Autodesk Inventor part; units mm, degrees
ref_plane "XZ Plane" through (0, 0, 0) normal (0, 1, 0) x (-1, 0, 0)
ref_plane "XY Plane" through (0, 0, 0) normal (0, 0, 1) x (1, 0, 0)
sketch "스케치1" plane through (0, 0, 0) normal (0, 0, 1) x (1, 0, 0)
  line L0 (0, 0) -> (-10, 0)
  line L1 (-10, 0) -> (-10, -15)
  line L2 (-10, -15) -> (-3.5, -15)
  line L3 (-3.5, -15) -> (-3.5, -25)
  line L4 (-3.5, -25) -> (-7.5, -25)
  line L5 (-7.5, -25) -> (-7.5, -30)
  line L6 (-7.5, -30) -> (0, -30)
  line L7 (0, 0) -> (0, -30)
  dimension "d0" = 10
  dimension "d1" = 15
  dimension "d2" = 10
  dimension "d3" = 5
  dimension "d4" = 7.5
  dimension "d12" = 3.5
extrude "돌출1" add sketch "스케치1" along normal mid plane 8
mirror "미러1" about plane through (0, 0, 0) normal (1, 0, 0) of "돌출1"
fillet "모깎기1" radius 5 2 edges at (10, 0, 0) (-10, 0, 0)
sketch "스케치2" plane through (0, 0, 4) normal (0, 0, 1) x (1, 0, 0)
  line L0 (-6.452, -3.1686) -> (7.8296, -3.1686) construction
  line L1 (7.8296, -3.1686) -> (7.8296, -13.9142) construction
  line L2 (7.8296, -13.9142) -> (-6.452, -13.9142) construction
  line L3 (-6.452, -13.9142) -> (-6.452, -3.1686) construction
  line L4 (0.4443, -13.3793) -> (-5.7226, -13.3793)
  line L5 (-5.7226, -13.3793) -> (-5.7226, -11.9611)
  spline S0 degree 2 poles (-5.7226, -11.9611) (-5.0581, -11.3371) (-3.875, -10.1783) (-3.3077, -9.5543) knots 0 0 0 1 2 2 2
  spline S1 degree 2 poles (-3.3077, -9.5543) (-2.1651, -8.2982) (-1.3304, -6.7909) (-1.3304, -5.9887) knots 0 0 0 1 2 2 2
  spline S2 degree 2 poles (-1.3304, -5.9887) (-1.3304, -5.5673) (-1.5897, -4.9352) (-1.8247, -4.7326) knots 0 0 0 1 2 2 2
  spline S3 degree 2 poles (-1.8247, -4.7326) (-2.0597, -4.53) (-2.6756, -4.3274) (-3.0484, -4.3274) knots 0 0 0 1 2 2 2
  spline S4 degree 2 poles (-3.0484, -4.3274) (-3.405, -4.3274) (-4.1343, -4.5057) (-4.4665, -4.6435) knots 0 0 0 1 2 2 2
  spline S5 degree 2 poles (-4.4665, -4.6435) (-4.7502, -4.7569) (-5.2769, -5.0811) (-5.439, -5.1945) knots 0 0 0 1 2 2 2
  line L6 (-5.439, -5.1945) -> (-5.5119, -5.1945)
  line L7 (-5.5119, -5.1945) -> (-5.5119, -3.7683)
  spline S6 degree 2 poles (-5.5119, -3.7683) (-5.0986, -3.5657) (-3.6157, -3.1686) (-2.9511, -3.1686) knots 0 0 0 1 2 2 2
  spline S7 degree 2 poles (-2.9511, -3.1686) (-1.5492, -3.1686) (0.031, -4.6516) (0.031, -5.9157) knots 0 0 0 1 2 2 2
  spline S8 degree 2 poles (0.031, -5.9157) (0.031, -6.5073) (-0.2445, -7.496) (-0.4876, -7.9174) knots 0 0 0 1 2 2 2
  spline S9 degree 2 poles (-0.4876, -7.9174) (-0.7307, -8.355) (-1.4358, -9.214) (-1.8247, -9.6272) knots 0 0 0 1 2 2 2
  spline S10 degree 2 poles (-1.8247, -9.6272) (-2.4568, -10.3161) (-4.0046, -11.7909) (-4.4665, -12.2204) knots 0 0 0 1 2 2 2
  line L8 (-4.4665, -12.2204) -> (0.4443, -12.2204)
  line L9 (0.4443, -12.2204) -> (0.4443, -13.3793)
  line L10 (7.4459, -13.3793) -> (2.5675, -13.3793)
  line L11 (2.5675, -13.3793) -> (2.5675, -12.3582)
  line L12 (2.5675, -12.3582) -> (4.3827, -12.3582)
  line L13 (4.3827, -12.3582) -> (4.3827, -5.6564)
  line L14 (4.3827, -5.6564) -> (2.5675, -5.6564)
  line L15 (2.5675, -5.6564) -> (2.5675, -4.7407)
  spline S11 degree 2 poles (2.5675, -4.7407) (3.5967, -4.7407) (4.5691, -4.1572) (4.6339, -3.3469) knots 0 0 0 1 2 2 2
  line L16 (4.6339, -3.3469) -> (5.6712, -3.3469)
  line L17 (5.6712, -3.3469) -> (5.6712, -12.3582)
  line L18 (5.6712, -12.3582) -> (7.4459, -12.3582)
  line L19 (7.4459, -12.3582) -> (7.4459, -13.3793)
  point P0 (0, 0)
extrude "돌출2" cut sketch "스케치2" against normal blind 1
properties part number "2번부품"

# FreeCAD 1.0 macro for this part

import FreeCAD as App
import Part
import Sketcher
from FreeCAD import Vector


def edges_at(feature, points):
    """Names of the edges that pass closest to the given points."""
    edges = feature.Shape.Edges
    near = lambda p: min(range(len(edges)), key=lambda i: edges[i].distToShape(Part.Vertex(*p))[0])
    return sorted({f"Edge{near(p) + 1}" for p in points})

doc = App.newDocument("Part")
body = doc.addObject("PartDesign::Body", "Body")

# Sketch on XY plane
sketch1 = body.newObject("Sketcher::SketchObject", "Sketch")
sketch1.AttachmentSupport = (doc.getObject("XY_Plane"), [""])
sketch1.MapMode = "FlatFace"
sketch1.addGeometry([
    Part.LineSegment(Vector(0, -30, 0), Vector(0, 0, 0)),  # 0
    Part.LineSegment(Vector(0, 0, 0), Vector(-10, 0, 0)),  # 1
    Part.LineSegment(Vector(-10, 0, 0), Vector(-10, -15, 0)),  # 2
    Part.LineSegment(Vector(-10, -15, 0), Vector(-3.5, -15, 0)),  # 3
    Part.LineSegment(Vector(-3.5, -15, 0), Vector(-3.5, -25, 0)),  # 4
    Part.LineSegment(Vector(-3.5, -25, 0), Vector(-7.5, -25, 0)),  # 5
    Part.LineSegment(Vector(-7.5, -25, 0), Vector(-7.5, -30, 0)),  # 6
    Part.LineSegment(Vector(-7.5, -30, 0), Vector(0, -30, 0)),  # 7
], False)
sketch1.addConstraint([
    Sketcher.Constraint("Coincident", 0, 2, 1, 1),
    Sketcher.Constraint("Coincident", 1, 2, 2, 1),
    Sketcher.Constraint("Coincident", 2, 2, 3, 1),
    Sketcher.Constraint("Coincident", 3, 2, 4, 1),
    Sketcher.Constraint("Coincident", 4, 2, 5, 1),
    Sketcher.Constraint("Coincident", 5, 2, 6, 1),
    Sketcher.Constraint("Coincident", 6, 2, 7, 1),
    Sketcher.Constraint("Coincident", 7, 2, 0, 1),
    Sketcher.Constraint("Vertical", 0),
    Sketcher.Constraint("Horizontal", 1),
    Sketcher.Constraint("Vertical", 2),
    Sketcher.Constraint("Horizontal", 3),
    Sketcher.Constraint("Vertical", 4),
    Sketcher.Constraint("Horizontal", 5),
    Sketcher.Constraint("Vertical", 6),
    Sketcher.Constraint("Horizontal", 7),
    Sketcher.Constraint("Coincident", 0, 2, -1, 1),
    Sketcher.Constraint("Equal", 1, 4),
    Sketcher.Constraint("DistanceX", 1, 2, 1, 1, 10.0),
    Sketcher.Constraint("DistanceY", 2, 2, 2, 1, 15.0),
    Sketcher.Constraint("DistanceY", 6, 2, 6, 1, 5.0),
    Sketcher.Constraint("DistanceX", 7, 1, 7, 2, 7.5),
    Sketcher.Constraint("DistanceX", 3, 2, -1, 1, 3.5),
])
pad1 = body.newObject("PartDesign::Pad", "Pad")
pad1.Profile = sketch1
pad1.Length = 8
pad1.Midplane = True
doc.recompute()

mirrored = body.newObject("PartDesign::Mirrored", "Mirrored")
mirrored.Originals = [pad1]
mirrored.MirrorPlane = (doc.getObject("YZ_Plane"), [""])
body.Tip = mirrored
doc.recompute()

fillet = body.newObject("PartDesign::Fillet", "Fillet")
fillet.Base = (mirrored, edges_at(mirrored, [(10, 0, 0), (-10, 0, 0)]))
fillet.Radius = 5

# Sketch on XY plane
sketch2 = body.newObject("Sketcher::SketchObject", "Sketch001")
sketch2.AttachmentSupport = (doc.getObject("XY_Plane"), [""])
sketch2.MapMode = "FlatFace"
sketch2.AttachmentOffset = App.Placement(Vector(0, 0, 4), App.Rotation())
sketch2.addGeometry([
    Part.LineSegment(Vector(-5.7226, -13.3793, 0), Vector(0.4443, -13.3793, 0)),  # 0
    Part.LineSegment(Vector(0.4443, -13.3793, 0), Vector(0.4443, -12.2204, 0)),  # 1
    Part.LineSegment(Vector(0.4443, -12.2204, 0), Vector(-4.4665, -12.2204, 0)),  # 2
    Part.BSplineCurve([Vector(-1.8247, -9.6272, 0), Vector(-2.4568, -10.3161, 0), Vector(-4.0046, -11.7909, 0), Vector(-4.4665, -12.2204, 0)], [3, 1, 3], [0, 1, 2], False, 2, [1, 1, 1, 1], False),  # 3
    Part.BSplineCurve([Vector(-0.4876, -7.9174, 0), Vector(-0.7307, -8.355, 0), Vector(-1.4358, -9.214, 0), Vector(-1.8247, -9.6272, 0)], [3, 1, 3], [0, 1, 2], False, 2, [1, 1, 1, 1], False),  # 4
    Part.BSplineCurve([Vector(0.031, -5.9157, 0), Vector(0.031, -6.5073, 0), Vector(-0.2445, -7.496, 0), Vector(-0.4876, -7.9174, 0)], [3, 1, 3], [0, 1, 2], False, 2, [1, 1, 1, 1], False),  # 5
    Part.BSplineCurve([Vector(-2.9511, -3.1686, 0), Vector(-1.5492, -3.1686, 0), Vector(0.031, -4.6516, 0), Vector(0.031, -5.9157, 0)], [3, 1, 3], [0, 1, 2], False, 2, [1, 1, 1, 1], False),  # 6
    Part.BSplineCurve([Vector(-5.5119, -3.7683, 0), Vector(-5.0986, -3.5657, 0), Vector(-3.6157, -3.1686, 0), Vector(-2.9511, -3.1686, 0)], [3, 1, 3], [0, 1, 2], False, 2, [1, 1, 1, 1], False),  # 7
    Part.LineSegment(Vector(-5.5119, -3.7683, 0), Vector(-5.5119, -5.1945, 0)),  # 8
    Part.LineSegment(Vector(-5.5119, -5.1945, 0), Vector(-5.439, -5.1945, 0)),  # 9
    Part.BSplineCurve([Vector(-4.4665, -4.6435, 0), Vector(-4.7502, -4.7569, 0), Vector(-5.2769, -5.0811, 0), Vector(-5.439, -5.1945, 0)], [3, 1, 3], [0, 1, 2], False, 2, [1, 1, 1, 1], False),  # 10
    Part.BSplineCurve([Vector(-3.0484, -4.3274, 0), Vector(-3.405, -4.3274, 0), Vector(-4.1343, -4.5057, 0), Vector(-4.4665, -4.6435, 0)], [3, 1, 3], [0, 1, 2], False, 2, [1, 1, 1, 1], False),  # 11
    Part.BSplineCurve([Vector(-1.8247, -4.7326, 0), Vector(-2.0597, -4.53, 0), Vector(-2.6756, -4.3274, 0), Vector(-3.0484, -4.3274, 0)], [3, 1, 3], [0, 1, 2], False, 2, [1, 1, 1, 1], False),  # 12
    Part.BSplineCurve([Vector(-1.3304, -5.9887, 0), Vector(-1.3304, -5.5673, 0), Vector(-1.5897, -4.9352, 0), Vector(-1.8247, -4.7326, 0)], [3, 1, 3], [0, 1, 2], False, 2, [1, 1, 1, 1], False),  # 13
    Part.BSplineCurve([Vector(-3.3077, -9.5543, 0), Vector(-2.1651, -8.2982, 0), Vector(-1.3304, -6.7909, 0), Vector(-1.3304, -5.9887, 0)], [3, 1, 3], [0, 1, 2], False, 2, [1, 1, 1, 1], False),  # 14
    Part.BSplineCurve([Vector(-5.7226, -11.9611, 0), Vector(-5.0581, -11.3371, 0), Vector(-3.875, -10.1783, 0), Vector(-3.3077, -9.5543, 0)], [3, 1, 3], [0, 1, 2], False, 2, [1, 1, 1, 1], False),  # 15
    Part.LineSegment(Vector(-5.7226, -11.9611, 0), Vector(-5.7226, -13.3793, 0)),  # 16
    Part.LineSegment(Vector(2.5675, -13.3793, 0), Vector(7.4459, -13.3793, 0)),  # 17
    Part.LineSegment(Vector(7.4459, -13.3793, 0), Vector(7.4459, -12.3582, 0)),  # 18
    Part.LineSegment(Vector(7.4459, -12.3582, 0), Vector(5.6712, -12.3582, 0)),  # 19
    Part.LineSegment(Vector(5.6712, -12.3582, 0), Vector(5.6712, -3.3469, 0)),  # 20
    Part.LineSegment(Vector(5.6712, -3.3469, 0), Vector(4.6339, -3.3469, 0)),  # 21
    Part.BSplineCurve([Vector(2.5675, -4.7407, 0), Vector(3.5967, -4.7407, 0), Vector(4.5691, -4.1572, 0), Vector(4.6339, -3.3469, 0)], [3, 1, 3], [0, 1, 2], False, 2, [1, 1, 1, 1], False),  # 22
    Part.LineSegment(Vector(2.5675, -4.7407, 0), Vector(2.5675, -5.6564, 0)),  # 23
    Part.LineSegment(Vector(2.5675, -5.6564, 0), Vector(4.3827, -5.6564, 0)),  # 24
    Part.LineSegment(Vector(4.3827, -5.6564, 0), Vector(4.3827, -12.3582, 0)),  # 25
    Part.LineSegment(Vector(4.3827, -12.3582, 0), Vector(2.5675, -12.3582, 0)),  # 26
    Part.LineSegment(Vector(2.5675, -12.3582, 0), Vector(2.5675, -13.3793, 0)),  # 27
], False)
sketch2.addConstraint([
    Sketcher.Constraint("Block", 3),
    Sketcher.Constraint("Block", 4),
    Sketcher.Constraint("Block", 5),
    Sketcher.Constraint("Block", 6),
    Sketcher.Constraint("Block", 7),
    Sketcher.Constraint("Block", 10),
    Sketcher.Constraint("Block", 11),
    Sketcher.Constraint("Block", 12),
    Sketcher.Constraint("Block", 13),
    Sketcher.Constraint("Block", 14),
    Sketcher.Constraint("Block", 15),
    Sketcher.Constraint("Block", 22),
    Sketcher.Constraint("Coincident", 0, 2, 1, 1),
    Sketcher.Constraint("Coincident", 1, 2, 2, 1),
    Sketcher.Constraint("Coincident", 2, 2, 3, 2),
    Sketcher.Constraint("Coincident", 7, 1, 8, 1),
    Sketcher.Constraint("Coincident", 8, 2, 9, 1),
    Sketcher.Constraint("Coincident", 9, 2, 10, 2),
    Sketcher.Constraint("Coincident", 15, 1, 16, 1),
    Sketcher.Constraint("Coincident", 16, 2, 0, 1),
    Sketcher.Constraint("Coincident", 17, 2, 18, 1),
    Sketcher.Constraint("Coincident", 18, 2, 19, 1),
    Sketcher.Constraint("Coincident", 19, 2, 20, 1),
    Sketcher.Constraint("Coincident", 20, 2, 21, 1),
    Sketcher.Constraint("Coincident", 21, 2, 22, 2),
    Sketcher.Constraint("Coincident", 22, 1, 23, 1),
    Sketcher.Constraint("Coincident", 23, 2, 24, 1),
    Sketcher.Constraint("Coincident", 24, 2, 25, 1),
    Sketcher.Constraint("Coincident", 25, 2, 26, 1),
    Sketcher.Constraint("Coincident", 26, 2, 27, 1),
    Sketcher.Constraint("Coincident", 27, 2, 17, 1),
    Sketcher.Constraint("Horizontal", 0),
    Sketcher.Constraint("Vertical", 1),
    Sketcher.Constraint("Horizontal", 2),
    Sketcher.Constraint("Vertical", 8),
    Sketcher.Constraint("Horizontal", 9),
    Sketcher.Constraint("Vertical", 16),
    Sketcher.Constraint("Horizontal", 17),
    Sketcher.Constraint("Vertical", 18),
    Sketcher.Constraint("Horizontal", 19),
    Sketcher.Constraint("Vertical", 20),
    Sketcher.Constraint("Horizontal", 21),
    Sketcher.Constraint("Vertical", 23),
    Sketcher.Constraint("Horizontal", 24),
    Sketcher.Constraint("Vertical", 25),
    Sketcher.Constraint("Horizontal", 26),
    Sketcher.Constraint("Vertical", 27),
    Sketcher.Constraint("Horizontal", 16, 2, 17, 2),
    Sketcher.Constraint("Horizontal", 19, 2, 25, 2),
    Sketcher.Constraint("Vertical", 23, 2, 26, 2),
    Sketcher.Constraint("DistanceX", 0, 1, 0, 2, 6.167),
    Sketcher.Constraint("DistanceY", 1, 1, 1, 2, 1.159),
    Sketcher.Constraint("DistanceY", 18, 1, 18, 2, 1.021),
    Sketcher.Constraint("DistanceX", 17, 1, 17, 2, 4.8784),
    Sketcher.Constraint("DistanceX", 19, 2, 19, 1, 1.7747),
    Sketcher.Constraint("DistanceX", 24, 1, 24, 2, 1.8152),
    Sketcher.Constraint("DistanceY", 23, 2, 23, 1, 0.9157),
])
pocket1 = body.newObject("PartDesign::Pocket", "Pocket")
pocket1.Profile = sketch2
pocket1.Length = 1

doc.recompute()
